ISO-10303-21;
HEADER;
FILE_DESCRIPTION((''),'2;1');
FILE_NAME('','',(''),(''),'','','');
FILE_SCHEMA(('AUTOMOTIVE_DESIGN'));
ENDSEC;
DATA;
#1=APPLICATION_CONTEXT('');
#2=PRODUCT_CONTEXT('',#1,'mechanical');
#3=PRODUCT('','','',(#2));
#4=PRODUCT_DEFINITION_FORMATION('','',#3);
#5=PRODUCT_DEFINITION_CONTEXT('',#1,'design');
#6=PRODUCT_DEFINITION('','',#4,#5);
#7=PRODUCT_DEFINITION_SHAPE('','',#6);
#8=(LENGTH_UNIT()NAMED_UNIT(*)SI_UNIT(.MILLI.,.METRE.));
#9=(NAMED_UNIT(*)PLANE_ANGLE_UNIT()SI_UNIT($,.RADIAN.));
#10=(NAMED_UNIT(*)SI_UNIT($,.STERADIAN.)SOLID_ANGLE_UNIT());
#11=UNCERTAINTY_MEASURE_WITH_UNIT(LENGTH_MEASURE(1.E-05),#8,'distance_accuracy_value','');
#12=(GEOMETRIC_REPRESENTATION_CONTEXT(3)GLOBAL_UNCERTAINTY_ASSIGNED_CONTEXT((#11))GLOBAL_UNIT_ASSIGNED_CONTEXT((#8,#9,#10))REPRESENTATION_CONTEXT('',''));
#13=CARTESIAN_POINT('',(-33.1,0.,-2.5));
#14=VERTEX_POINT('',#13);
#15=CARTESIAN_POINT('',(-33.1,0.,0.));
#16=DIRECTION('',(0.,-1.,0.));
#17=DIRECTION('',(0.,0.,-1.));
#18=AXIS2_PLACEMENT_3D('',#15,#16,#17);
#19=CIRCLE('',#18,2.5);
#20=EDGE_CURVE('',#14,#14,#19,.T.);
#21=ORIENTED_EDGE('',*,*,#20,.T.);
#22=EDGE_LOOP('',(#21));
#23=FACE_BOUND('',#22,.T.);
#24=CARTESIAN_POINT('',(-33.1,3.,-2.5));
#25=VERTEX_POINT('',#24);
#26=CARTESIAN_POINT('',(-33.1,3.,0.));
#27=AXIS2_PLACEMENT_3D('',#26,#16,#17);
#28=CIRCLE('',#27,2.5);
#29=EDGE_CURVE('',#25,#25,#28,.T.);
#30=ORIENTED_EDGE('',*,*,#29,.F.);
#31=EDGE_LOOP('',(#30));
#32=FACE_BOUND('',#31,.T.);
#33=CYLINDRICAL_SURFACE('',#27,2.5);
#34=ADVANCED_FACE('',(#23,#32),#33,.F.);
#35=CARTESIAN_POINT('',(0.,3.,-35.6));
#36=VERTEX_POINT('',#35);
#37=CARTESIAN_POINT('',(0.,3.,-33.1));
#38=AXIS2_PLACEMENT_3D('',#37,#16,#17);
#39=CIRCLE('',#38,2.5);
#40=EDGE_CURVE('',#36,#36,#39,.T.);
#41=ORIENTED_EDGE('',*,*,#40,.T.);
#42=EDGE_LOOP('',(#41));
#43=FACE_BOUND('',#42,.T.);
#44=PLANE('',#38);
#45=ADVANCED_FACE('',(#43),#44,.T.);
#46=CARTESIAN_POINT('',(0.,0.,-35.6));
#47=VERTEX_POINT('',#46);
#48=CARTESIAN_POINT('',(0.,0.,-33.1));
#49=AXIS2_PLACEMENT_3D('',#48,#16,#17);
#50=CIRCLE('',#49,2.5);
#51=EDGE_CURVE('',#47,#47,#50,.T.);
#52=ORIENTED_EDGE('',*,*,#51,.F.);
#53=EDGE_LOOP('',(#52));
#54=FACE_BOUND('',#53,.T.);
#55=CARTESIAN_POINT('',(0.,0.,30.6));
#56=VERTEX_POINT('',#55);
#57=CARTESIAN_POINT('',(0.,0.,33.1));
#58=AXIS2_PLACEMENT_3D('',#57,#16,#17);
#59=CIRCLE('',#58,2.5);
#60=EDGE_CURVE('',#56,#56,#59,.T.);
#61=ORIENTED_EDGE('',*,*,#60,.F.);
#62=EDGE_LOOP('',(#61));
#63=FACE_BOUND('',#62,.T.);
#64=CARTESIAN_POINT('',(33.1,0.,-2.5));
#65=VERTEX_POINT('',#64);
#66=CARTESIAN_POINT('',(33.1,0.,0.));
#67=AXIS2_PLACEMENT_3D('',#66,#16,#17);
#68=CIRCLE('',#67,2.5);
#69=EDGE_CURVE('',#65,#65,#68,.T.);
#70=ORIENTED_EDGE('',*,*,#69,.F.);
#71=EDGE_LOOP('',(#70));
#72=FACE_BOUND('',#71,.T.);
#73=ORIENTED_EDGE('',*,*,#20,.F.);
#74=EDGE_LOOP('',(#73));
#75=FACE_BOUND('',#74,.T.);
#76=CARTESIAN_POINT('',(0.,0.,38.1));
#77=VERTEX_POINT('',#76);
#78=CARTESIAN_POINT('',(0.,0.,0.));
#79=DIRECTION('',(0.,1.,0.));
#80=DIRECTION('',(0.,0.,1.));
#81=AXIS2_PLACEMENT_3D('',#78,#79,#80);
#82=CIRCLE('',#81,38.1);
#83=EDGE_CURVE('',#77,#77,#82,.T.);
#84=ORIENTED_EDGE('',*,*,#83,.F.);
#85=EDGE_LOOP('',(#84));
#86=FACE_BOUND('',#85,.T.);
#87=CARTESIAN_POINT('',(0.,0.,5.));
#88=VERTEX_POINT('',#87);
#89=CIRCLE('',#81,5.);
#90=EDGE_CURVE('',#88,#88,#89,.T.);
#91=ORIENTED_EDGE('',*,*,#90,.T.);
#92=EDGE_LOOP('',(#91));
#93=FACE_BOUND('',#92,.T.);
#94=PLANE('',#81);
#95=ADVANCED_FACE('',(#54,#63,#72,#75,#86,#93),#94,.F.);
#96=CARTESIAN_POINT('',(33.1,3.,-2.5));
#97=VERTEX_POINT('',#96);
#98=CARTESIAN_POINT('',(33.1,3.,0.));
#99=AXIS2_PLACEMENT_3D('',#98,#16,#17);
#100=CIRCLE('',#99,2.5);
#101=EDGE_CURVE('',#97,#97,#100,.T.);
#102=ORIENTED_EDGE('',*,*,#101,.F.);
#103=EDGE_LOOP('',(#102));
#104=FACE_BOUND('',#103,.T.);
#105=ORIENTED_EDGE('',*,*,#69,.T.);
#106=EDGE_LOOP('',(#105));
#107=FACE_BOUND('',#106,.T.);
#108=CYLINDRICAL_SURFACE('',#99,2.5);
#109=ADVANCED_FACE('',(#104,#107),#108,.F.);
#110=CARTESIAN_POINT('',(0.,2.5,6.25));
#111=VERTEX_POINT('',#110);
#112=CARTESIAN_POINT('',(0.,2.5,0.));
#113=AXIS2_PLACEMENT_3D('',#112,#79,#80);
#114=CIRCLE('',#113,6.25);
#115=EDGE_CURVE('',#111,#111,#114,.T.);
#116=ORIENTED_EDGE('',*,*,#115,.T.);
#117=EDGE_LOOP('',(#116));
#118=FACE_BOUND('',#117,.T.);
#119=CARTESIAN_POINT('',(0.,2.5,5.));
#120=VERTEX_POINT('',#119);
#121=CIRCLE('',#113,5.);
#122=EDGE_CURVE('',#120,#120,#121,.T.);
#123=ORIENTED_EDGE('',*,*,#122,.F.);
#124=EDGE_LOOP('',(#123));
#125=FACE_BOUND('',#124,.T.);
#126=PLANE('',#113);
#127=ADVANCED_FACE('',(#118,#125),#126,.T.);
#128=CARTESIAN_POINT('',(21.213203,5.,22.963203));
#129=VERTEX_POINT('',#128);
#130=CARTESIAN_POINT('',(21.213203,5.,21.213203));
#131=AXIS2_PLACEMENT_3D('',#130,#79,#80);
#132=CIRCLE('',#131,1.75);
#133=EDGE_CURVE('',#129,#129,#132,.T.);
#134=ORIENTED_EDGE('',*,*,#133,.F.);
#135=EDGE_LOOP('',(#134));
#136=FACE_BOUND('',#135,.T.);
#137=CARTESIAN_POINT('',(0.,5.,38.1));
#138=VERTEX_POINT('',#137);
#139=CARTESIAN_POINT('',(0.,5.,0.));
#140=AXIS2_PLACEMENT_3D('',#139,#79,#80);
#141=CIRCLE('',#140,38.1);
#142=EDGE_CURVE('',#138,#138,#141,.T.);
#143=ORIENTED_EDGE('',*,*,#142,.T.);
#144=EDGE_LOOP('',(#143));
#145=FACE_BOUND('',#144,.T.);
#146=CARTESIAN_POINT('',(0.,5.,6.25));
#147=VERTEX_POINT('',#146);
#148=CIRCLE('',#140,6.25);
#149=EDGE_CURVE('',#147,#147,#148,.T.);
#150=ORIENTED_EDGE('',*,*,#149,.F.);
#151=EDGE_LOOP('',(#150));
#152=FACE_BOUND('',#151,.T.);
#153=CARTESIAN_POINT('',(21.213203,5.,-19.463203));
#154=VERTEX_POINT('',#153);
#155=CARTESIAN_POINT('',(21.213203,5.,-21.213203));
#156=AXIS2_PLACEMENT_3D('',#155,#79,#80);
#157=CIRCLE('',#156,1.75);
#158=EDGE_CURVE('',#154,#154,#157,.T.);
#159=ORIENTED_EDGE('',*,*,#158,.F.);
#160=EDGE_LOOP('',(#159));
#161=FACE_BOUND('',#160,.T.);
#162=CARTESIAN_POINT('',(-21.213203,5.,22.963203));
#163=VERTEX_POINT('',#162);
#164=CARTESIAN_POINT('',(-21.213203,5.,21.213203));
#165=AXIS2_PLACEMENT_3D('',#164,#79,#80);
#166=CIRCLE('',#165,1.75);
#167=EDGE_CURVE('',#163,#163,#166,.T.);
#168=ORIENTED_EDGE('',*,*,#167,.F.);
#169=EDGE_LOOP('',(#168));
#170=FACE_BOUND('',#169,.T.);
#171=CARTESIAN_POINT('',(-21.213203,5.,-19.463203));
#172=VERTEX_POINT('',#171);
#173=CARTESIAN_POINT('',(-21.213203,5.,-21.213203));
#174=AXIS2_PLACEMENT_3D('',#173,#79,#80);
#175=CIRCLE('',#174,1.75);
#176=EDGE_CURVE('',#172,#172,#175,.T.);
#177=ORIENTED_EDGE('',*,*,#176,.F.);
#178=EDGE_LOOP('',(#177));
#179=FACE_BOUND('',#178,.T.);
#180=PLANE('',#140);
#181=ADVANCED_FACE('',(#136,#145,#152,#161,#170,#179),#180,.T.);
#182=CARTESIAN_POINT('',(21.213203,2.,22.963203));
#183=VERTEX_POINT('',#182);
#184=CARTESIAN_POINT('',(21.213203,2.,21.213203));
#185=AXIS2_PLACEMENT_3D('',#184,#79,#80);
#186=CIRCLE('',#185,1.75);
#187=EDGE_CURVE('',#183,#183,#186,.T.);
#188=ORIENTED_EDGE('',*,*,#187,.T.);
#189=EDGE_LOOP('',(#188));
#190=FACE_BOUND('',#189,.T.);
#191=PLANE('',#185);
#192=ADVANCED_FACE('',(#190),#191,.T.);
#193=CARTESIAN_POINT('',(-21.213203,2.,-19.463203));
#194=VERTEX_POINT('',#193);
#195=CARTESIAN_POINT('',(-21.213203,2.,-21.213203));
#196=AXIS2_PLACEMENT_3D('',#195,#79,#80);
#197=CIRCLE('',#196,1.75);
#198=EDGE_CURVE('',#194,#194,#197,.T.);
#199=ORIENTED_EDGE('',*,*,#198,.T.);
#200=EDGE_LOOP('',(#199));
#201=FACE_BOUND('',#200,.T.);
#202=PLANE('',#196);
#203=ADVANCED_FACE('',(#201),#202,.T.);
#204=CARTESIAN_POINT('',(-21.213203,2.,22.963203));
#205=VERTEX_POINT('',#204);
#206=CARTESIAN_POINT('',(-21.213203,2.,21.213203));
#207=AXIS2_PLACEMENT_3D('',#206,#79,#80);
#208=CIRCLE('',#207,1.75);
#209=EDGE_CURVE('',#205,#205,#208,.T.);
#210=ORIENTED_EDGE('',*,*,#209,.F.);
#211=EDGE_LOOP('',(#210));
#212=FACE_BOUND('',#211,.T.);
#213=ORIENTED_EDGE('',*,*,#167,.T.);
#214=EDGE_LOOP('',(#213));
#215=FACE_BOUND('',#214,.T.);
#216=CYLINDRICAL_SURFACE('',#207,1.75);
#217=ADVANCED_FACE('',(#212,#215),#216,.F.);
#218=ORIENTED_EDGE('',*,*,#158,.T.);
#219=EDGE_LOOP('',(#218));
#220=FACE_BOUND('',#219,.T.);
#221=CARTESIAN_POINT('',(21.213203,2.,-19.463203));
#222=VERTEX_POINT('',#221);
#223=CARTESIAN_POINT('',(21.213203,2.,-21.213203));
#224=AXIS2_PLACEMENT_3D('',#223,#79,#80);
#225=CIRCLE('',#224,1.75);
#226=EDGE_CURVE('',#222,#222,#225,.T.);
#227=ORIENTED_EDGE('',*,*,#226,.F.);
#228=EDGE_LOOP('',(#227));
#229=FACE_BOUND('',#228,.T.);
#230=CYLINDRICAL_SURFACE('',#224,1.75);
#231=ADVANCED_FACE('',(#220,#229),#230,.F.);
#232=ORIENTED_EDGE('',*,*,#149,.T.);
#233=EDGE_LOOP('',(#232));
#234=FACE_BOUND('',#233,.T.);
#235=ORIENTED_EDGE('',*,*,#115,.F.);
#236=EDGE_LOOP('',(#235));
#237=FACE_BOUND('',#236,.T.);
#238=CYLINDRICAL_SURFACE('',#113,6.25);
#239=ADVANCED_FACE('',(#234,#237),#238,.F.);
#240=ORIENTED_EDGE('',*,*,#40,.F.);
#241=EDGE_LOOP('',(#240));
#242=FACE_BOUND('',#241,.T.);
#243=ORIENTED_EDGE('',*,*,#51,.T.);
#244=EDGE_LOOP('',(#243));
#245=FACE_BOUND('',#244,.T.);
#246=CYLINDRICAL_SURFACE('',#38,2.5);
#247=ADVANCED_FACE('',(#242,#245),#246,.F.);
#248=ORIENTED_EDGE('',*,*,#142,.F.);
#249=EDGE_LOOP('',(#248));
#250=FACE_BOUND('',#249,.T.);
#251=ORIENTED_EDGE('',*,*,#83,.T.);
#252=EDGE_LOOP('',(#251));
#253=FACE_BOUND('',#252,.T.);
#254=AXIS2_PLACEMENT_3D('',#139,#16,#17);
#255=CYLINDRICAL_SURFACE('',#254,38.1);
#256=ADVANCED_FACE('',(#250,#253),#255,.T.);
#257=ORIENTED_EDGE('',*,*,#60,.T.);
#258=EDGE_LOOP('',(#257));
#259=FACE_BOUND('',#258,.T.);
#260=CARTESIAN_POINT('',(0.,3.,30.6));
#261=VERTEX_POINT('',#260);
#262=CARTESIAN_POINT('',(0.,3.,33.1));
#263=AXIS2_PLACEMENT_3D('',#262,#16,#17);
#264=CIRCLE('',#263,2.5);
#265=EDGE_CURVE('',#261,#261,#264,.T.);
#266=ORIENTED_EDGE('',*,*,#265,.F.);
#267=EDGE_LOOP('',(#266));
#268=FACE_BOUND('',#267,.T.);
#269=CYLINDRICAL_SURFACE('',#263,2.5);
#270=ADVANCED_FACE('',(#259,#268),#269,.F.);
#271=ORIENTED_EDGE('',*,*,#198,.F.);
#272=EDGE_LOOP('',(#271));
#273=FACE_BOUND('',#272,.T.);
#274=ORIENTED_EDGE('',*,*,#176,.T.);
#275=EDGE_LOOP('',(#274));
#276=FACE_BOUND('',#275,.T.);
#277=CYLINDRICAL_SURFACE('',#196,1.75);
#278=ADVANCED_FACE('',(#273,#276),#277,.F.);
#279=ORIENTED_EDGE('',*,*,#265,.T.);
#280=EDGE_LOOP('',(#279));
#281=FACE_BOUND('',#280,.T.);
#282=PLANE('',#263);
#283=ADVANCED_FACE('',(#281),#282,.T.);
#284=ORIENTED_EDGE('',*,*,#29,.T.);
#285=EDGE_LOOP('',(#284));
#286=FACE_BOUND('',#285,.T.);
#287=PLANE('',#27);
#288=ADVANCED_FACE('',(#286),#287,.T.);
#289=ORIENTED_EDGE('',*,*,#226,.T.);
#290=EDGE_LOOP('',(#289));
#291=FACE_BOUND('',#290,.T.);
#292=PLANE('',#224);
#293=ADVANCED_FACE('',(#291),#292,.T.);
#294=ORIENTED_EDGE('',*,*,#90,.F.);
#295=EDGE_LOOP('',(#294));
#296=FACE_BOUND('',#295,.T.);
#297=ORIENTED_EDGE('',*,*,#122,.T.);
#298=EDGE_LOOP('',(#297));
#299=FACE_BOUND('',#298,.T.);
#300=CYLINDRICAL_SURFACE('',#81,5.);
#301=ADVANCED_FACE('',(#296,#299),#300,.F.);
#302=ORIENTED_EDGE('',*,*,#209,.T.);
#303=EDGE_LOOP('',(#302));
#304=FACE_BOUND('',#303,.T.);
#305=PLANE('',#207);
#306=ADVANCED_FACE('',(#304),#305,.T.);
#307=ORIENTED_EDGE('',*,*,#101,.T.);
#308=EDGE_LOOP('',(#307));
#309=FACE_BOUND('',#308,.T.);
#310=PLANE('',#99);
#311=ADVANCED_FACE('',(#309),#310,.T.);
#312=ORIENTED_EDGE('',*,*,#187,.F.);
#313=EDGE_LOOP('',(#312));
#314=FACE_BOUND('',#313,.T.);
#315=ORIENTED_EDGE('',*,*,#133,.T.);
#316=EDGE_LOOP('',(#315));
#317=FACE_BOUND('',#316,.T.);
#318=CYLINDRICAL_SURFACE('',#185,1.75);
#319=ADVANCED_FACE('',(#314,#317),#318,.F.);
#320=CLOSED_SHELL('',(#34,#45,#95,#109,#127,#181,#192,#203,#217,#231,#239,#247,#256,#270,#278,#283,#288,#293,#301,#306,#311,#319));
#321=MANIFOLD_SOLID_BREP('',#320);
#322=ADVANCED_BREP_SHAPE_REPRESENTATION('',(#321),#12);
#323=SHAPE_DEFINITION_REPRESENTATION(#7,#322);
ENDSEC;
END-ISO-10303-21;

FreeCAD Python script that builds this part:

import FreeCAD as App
import Part
import Sketcher
Q = App.Units.Quantity

doc = App.newDocument("Part")
body = doc.addObject("PartDesign::Body", "Body")

# Sketch on XZ plane
sketch1 = doc.addObject("Sketcher::SketchObject", "Sketch")
body.addObject(sketch1)
sketch1.AttachmentSupport = (doc.XZ_Plane, [""])
sketch1.MapMode = "FlatFace"
sketch1.addGeometry(Part.Circle(App.Vector(0, 0, 0), App.Vector(0, 0, 1), 38.1), False)
sketch1.addConstraint(Sketcher.Constraint("Coincident", 0, 3, -1, 1))
sketch1.addConstraint(Sketcher.Constraint("Diameter", 0, Q("76.2 mm")))
pad1 = doc.addObject("PartDesign::Pad", "Pad")
body.addObject(pad1)
pad1.Profile = sketch1
pad1.Length = 5
pad1.Reversed = True

# Sketch on XZ plane
sketch2 = doc.addObject("Sketcher::SketchObject", "Sketch001")
body.addObject(sketch2)
sketch2.AttachmentSupport = (doc.XZ_Plane, [""])
sketch2.MapMode = "FlatFace"
sketch2.AttachmentOffset = App.Placement(App.Vector(0, 0, -5), App.Rotation())
sketch2.addGeometry(Part.Circle(App.Vector(21.213203, -21.213203, 0), App.Vector(0, 0, 1), 1.75), False)
sketch2.addGeometry(Part.Circle(App.Vector(-21.213203, -21.213203, 0), App.Vector(0, 0, 1), 1.75), False)
sketch2.addGeometry(Part.Circle(App.Vector(-21.213203, 21.213203, 0), App.Vector(0, 0, 1), 1.75), False)
sketch2.addGeometry(Part.Circle(App.Vector(21.213203, 21.213203, 0), App.Vector(0, 0, 1), 1.75), False)
sketch2.addConstraint(Sketcher.Constraint("Equal", 0, 1))
sketch2.addConstraint(Sketcher.Constraint("Equal", 1, 2))
sketch2.addConstraint(Sketcher.Constraint("Equal", 2, 3))
sketch2.addConstraint(Sketcher.Constraint("Symmetric", 0, 3, 2, 3, -1, 1))
sketch2.addConstraint(Sketcher.Constraint("Symmetric", 1, 3, 3, 3, -1, 1))
sketch2.addConstraint(Sketcher.Constraint("Symmetric", 0, 3, 1, 3, -2))
sketch2.addConstraint(Sketcher.Constraint("Diameter", 0, Q("3.5 mm")))
sketch2.addConstraint(Sketcher.Constraint("DistanceX", -1, 1, 0, 3, Q("21.213203 mm")))
sketch2.addConstraint(Sketcher.Constraint("DistanceY", 0, 3, -1, 1, Q("21.213203 mm")))
pocket1 = doc.addObject("PartDesign::Pocket", "Pocket")
body.addObject(pocket1)
pocket1.Profile = sketch2
pocket1.Length = 3
pocket1.Reversed = True

# Sketch on XZ plane
sketch3 = doc.addObject("Sketcher::SketchObject", "Sketch002")
body.addObject(sketch3)
sketch3.AttachmentSupport = (doc.XZ_Plane, [""])
sketch3.MapMode = "FlatFace"
sketch3.addGeometry(Part.Circle(App.Vector(0, -33.1, 0), App.Vector(0, 0, 1), 2.5), False)
sketch3.addGeometry(Part.Circle(App.Vector(33.1, 0, 0), App.Vector(0, 0, 1), 2.5), False)
sketch3.addGeometry(Part.Circle(App.Vector(0, 33.1, 0), App.Vector(0, 0, 1), 2.5), False)
sketch3.addGeometry(Part.Circle(App.Vector(-33.1, 0, 0), App.Vector(0, 0, 1), 2.5), False)
sketch3.addConstraint(Sketcher.Constraint("Equal", 0, 1))
sketch3.addConstraint(Sketcher.Constraint("Equal", 1, 2))
sketch3.addConstraint(Sketcher.Constraint("Equal", 2, 3))
sketch3.addConstraint(Sketcher.Constraint("Symmetric", 0, 3, 2, 3, -1, 1))
sketch3.addConstraint(Sketcher.Constraint("Symmetric", 1, 3, 3, 3, -1, 1))
sketch3.addConstraint(Sketcher.Constraint("PointOnObject", 0, 3, -2))
sketch3.addConstraint(Sketcher.Constraint("PointOnObject", 1, 3, -1))
sketch3.addConstraint(Sketcher.Constraint("Diameter", 0, Q("5 mm")))
sketch3.addConstraint(Sketcher.Constraint("DistanceY", 0, 3, -1, 1, Q("33.1 mm")))
sketch3.addConstraint(Sketcher.Constraint("DistanceX", -1, 1, 1, 3, Q("33.1 mm")))
pocket2 = doc.addObject("PartDesign::Pocket", "Pocket001")
body.addObject(pocket2)
pocket2.Profile = sketch3
pocket2.Length = 3

# Sketch on XZ plane
sketch4 = doc.addObject("Sketcher::SketchObject", "Sketch003")
body.addObject(sketch4)
sketch4.AttachmentSupport = (doc.XZ_Plane, [""])
sketch4.MapMode = "FlatFace"
sketch4.AttachmentOffset = App.Placement(App.Vector(0, 0, -5), App.Rotation())
sketch4.addGeometry(Part.Circle(App.Vector(0, 0, 0), App.Vector(0, 0, 1), 6.25), False)
sketch4.addConstraint(Sketcher.Constraint("Coincident", 0, 3, -1, 1))
sketch4.addConstraint(Sketcher.Constraint("Diameter", 0, Q("12.5 mm")))
pocket3 = doc.addObject("PartDesign::Pocket", "Pocket002")
body.addObject(pocket3)
pocket3.Profile = sketch4
pocket3.Length = 2.5
pocket3.Reversed = True

# Sketch on XZ plane
sketch5 = doc.addObject("Sketcher::SketchObject", "Sketch004")
body.addObject(sketch5)
sketch5.AttachmentSupport = (doc.XZ_Plane, [""])
sketch5.MapMode = "FlatFace"
sketch5.AttachmentOffset = App.Placement(App.Vector(0, 0, -5), App.Rotation())
sketch5.addGeometry(Part.Circle(App.Vector(0, 0, 0), App.Vector(0, 0, 1), 5), False)
sketch5.addConstraint(Sketcher.Constraint("Coincident", 0, 3, -1, 1))
sketch5.addConstraint(Sketcher.Constraint("Diameter", 0, Q("10 mm")))
pocket4 = doc.addObject("PartDesign::Pocket", "Pocket003")
body.addObject(pocket4)
pocket4.Profile = sketch5
pocket4.Type = "ThroughAll"
pocket4.Reversed = True

doc.recompute()
